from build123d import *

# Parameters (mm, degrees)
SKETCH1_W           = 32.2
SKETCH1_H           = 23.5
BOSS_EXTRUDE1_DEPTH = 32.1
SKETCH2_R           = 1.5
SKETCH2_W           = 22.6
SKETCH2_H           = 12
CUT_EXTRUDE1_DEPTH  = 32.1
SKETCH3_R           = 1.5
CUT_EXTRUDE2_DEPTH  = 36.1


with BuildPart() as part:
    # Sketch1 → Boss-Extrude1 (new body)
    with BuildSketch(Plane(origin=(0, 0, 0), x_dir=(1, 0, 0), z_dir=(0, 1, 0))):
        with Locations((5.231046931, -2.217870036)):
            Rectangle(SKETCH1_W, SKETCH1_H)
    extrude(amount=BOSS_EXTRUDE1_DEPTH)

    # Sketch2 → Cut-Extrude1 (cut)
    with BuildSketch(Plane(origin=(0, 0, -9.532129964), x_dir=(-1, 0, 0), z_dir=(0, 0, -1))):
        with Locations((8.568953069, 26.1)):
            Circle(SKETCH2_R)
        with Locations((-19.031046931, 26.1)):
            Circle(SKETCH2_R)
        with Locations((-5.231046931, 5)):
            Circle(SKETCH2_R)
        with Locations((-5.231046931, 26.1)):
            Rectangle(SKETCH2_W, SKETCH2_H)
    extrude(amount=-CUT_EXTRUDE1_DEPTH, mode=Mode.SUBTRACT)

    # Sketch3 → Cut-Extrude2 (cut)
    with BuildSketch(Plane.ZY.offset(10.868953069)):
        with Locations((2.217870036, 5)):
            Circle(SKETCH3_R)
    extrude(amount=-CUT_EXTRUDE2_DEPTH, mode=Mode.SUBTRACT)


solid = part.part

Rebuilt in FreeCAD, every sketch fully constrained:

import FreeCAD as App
import Part
import Sketcher

V = App.Vector

doc = App.newDocument("Part")
body = doc.addObject("PartDesign::Body", "Body")

# Sketch on XZ plane
sketch1 = body.newObject("Sketcher::SketchObject", "Sketch")
sketch1.AttachmentSupport = (doc.getObject("XZ_Plane"), [""])
sketch1.MapMode = "FlatFace"
sketch1.addGeometry([
    Part.LineSegment(V(-10.868953, -9.53213, 0), V(-10.868953, 13.96787, 0)),
    Part.LineSegment(V(-10.868953, 13.96787, 0), V(21.331047, 13.96787, 0)),
    Part.LineSegment(V(21.331047, 13.96787, 0), V(21.331047, -9.53213, 0)),
    Part.LineSegment(V(21.331047, -9.53213, 0), V(-10.868953, -9.53213, 0)),
], False)
sketch1.addConstraint([
    Sketcher.Constraint("Coincident", 0, 2, 1, 1),
    Sketcher.Constraint("Coincident", 1, 2, 2, 1),
    Sketcher.Constraint("Coincident", 2, 2, 3, 1),
    Sketcher.Constraint("Coincident", 3, 2, 0, 1),
    Sketcher.Constraint("Vertical", 0),
    Sketcher.Constraint("Horizontal", 1),
    Sketcher.Constraint("Vertical", 2),
    Sketcher.Constraint("Horizontal", 3),
    Sketcher.Constraint("DistanceX", 1, 1, 1, 2, 32.2),
    Sketcher.Constraint("DistanceY", 0, 1, 0, 2, 23.5),
    Sketcher.Constraint("DistanceY", -1, 1, 0, 2, 13.96787),
    Sketcher.Constraint("DistanceX", 0, 2, -1, 1, 10.868953),
])
pad1 = body.newObject("PartDesign::Pad", "Pad")
pad1.Profile = sketch1
pad1.Length = 32.1
pad1.Reversed = True

# Sketch on XY plane
sketch2 = body.newObject("Sketcher::SketchObject", "Sketch001")
sketch2.AttachmentSupport = (doc.getObject("XY_Plane"), [""])
sketch2.MapMode = "FlatFace"
sketch2.AttachmentOffset = App.Placement(V(0, 0, -9.53213), App.Rotation())
sketch2.addGeometry([
    Part.Circle(V(-8.568953, 26.1, 0), V(0, 0, 1), 1.5),  # 0
    Part.Circle(V(19.031047, 26.1, 0), V(0, 0, 1), 1.5),  # 1
    Part.Circle(V(5.231047, 5, 0), V(0, 0, 1), 1.5),  # 2
    Part.LineSegment(V(16.531047, 32.1, 0), V(16.531047, 20.1, 0)),  # 3
    Part.LineSegment(V(16.531047, 20.1, 0), V(-6.068953, 20.1, 0)),  # 4
    Part.LineSegment(V(-6.068953, 20.1, 0), V(-6.068953, 32.1, 0)),  # 5
    Part.LineSegment(V(-6.068953, 32.1, 0), V(16.531047, 32.1, 0)),  # 6
], False)
sketch2.addConstraint([
    Sketcher.Constraint("Coincident", 3, 2, 4, 1),
    Sketcher.Constraint("Coincident", 4, 2, 5, 1),
    Sketcher.Constraint("Coincident", 5, 2, 6, 1),
    Sketcher.Constraint("Coincident", 6, 2, 3, 1),
    Sketcher.Constraint("Vertical", 3),
    Sketcher.Constraint("Horizontal", 4),
    Sketcher.Constraint("Vertical", 5),
    Sketcher.Constraint("Horizontal", 6),
    Sketcher.Constraint("Equal", 0, 1),
    Sketcher.Constraint("Equal", 1, 2),
    Sketcher.Constraint("Horizontal", 0, 3, 1, 3),
    Sketcher.Constraint("Diameter", 0, 3.0),
    Sketcher.Constraint("DistanceY", 3, 2, 3, 1, 12.0),
    Sketcher.Constraint("DistanceX", 4, 2, 4, 1, 22.6),
    Sketcher.Constraint("DistanceY", -1, 1, 2, 3, 5.0),
    Sketcher.Constraint("DistanceY", 3, 2, 1, 3, 6.0),
    Sketcher.Constraint("DistanceY", -1, 1, 0, 3, 26.1),
    Sketcher.Constraint("DistanceX", 0, 3, 1, 3, 27.6),
    Sketcher.Constraint("DistanceX", 2, 3, 1, 3, 13.8),
    Sketcher.Constraint("DistanceX", 3, 2, 1, 3, 2.5),
    Sketcher.Constraint("DistanceX", 0, 3, -1, 1, 8.568953),
])
pocket1 = body.newObject("PartDesign::Pocket", "Pocket")
pocket1.Profile = sketch2
pocket1.Length = 32.1
pocket1.Reversed = True

# Sketch on YZ plane
sketch3 = body.newObject("Sketcher::SketchObject", "Sketch002")
sketch3.AttachmentSupport = (doc.getObject("YZ_Plane"), [""])
sketch3.MapMode = "FlatFace"
sketch3.AttachmentOffset = App.Placement(V(0, 0, -10.868953), App.Rotation())
sketch3.addGeometry(Part.Circle(V(5, 2.21787, 0), V(0, 0, 1), 1.5), False)
sketch3.addConstraint([
    Sketcher.Constraint("Diameter", 0, 3.0),
    Sketcher.Constraint("DistanceX", -1, 1, 0, 3, 5.0),
    Sketcher.Constraint("DistanceY", -1, 1, 0, 3, 2.21787),
])
pocket2 = body.newObject("PartDesign::Pocket", "Pocket001")
pocket2.Profile = sketch3
pocket2.Length = 36.1
pocket2.Reversed = True

doc.recompute()
